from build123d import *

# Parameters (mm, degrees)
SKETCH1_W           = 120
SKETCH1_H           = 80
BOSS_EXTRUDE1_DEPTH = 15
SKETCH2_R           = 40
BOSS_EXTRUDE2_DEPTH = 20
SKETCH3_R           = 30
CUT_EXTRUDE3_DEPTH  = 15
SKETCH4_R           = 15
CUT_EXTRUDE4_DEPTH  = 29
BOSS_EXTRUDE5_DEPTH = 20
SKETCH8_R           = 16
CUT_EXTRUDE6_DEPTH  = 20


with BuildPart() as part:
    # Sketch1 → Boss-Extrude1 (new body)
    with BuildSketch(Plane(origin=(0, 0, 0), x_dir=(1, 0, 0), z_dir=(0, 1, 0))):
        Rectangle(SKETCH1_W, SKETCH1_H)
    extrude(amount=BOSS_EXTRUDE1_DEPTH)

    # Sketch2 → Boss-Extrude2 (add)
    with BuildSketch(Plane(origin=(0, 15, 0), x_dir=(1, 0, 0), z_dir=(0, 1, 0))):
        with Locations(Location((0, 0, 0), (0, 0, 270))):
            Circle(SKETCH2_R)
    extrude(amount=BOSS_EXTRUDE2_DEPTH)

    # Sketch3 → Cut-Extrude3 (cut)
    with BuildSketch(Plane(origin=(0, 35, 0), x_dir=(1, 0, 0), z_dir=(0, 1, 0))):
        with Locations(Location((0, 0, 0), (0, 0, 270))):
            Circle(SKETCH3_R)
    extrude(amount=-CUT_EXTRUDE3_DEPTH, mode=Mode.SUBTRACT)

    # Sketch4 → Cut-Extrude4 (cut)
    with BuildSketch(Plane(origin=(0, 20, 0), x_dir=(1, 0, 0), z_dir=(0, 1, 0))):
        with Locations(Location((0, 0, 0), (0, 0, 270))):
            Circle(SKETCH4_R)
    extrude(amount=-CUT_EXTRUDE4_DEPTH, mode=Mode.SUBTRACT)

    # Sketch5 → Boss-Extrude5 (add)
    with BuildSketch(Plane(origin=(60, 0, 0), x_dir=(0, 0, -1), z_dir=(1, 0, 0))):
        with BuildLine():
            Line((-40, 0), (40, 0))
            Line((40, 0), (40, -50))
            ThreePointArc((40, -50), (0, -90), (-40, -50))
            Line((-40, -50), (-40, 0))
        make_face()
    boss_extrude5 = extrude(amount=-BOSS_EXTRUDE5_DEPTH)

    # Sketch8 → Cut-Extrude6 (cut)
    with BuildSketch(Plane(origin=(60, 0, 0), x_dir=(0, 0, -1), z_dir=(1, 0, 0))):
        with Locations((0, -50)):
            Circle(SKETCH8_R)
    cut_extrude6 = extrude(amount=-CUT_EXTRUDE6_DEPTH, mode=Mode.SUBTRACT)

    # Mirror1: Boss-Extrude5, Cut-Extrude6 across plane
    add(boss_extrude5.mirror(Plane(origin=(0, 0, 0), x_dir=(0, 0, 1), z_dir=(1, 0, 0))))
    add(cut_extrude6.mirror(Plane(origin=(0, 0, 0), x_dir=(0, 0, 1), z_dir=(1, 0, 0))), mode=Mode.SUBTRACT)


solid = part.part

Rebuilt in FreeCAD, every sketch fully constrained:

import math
import FreeCAD as App
import Part
import Sketcher

doc = App.newDocument("Part")
body = doc.addObject("PartDesign::Body", "Body")

sketch1 = doc.addObject("Sketcher::SketchObject", "Sketch")
body.addObject(sketch1)
sketch1.AttachmentSupport = (doc.XZ_Plane, [""])
sketch1.MapMode = "FlatFace"
sketch1.addGeometry([
    Part.LineSegment(App.Vector(-60, -40, 0), App.Vector(-60, 40, 0)),
    Part.LineSegment(App.Vector(-60, 40, 0), App.Vector(60, 40, 0)),
    Part.LineSegment(App.Vector(60, 40, 0), App.Vector(60, -40, 0)),
    Part.LineSegment(App.Vector(60, -40, 0), App.Vector(-60, -40, 0)),
], False)
sketch1.addConstraint([
    Sketcher.Constraint("Coincident", 0, 2, 1, 1),
    Sketcher.Constraint("Coincident", 1, 2, 2, 1),
    Sketcher.Constraint("Coincident", 2, 2, 3, 1),
    Sketcher.Constraint("Coincident", 3, 2, 0, 1),
    Sketcher.Constraint("Vertical", 0),
    Sketcher.Constraint("Horizontal", 1),
    Sketcher.Constraint("Vertical", 2),
    Sketcher.Constraint("Horizontal", 3),
    Sketcher.Constraint("Symmetric", 0, 2, 2, 2, -1, 1),
    Sketcher.Constraint("DistanceX", 1, 1, 1, 2, 120.0),
    Sketcher.Constraint("DistanceY", 0, 1, 0, 2, 80.0),
])
pad1 = doc.addObject("PartDesign::Pad", "Pad")
body.addObject(pad1)
pad1.Profile = sketch1
pad1.Length = 15
pad1.Reversed = True

sketch2 = doc.addObject("Sketcher::SketchObject", "Sketch001")
body.addObject(sketch2)
sketch2.AttachmentSupport = (doc.XZ_Plane, [""])
sketch2.MapMode = "FlatFace"
sketch2.AttachmentOffset = App.Placement(App.Vector(0, 0, -15), App.Rotation())
sketch2.addGeometry(Part.Circle(App.Vector(0, 0, 0), App.Vector(0, 0, 1), 40), False)
sketch2.addConstraint([
    Sketcher.Constraint("Coincident", 0, 3, -1, 1),
    Sketcher.Constraint("Diameter", 0, 80.0),
])
pad2 = doc.addObject("PartDesign::Pad", "Pad001")
body.addObject(pad2)
pad2.Profile = sketch2
pad2.Length = 20
pad2.Reversed = True

sketch3 = doc.addObject("Sketcher::SketchObject", "Sketch002")
body.addObject(sketch3)
sketch3.AttachmentSupport = (doc.XZ_Plane, [""])
sketch3.MapMode = "FlatFace"
sketch3.AttachmentOffset = App.Placement(App.Vector(0, 0, -35), App.Rotation())
sketch3.addGeometry(Part.Circle(App.Vector(0, 0, 0), App.Vector(0, 0, 1), 30), False)
sketch3.addConstraint([
    Sketcher.Constraint("Coincident", 0, 3, -1, 1),
    Sketcher.Constraint("Diameter", 0, 60.0),
])
pocket1 = doc.addObject("PartDesign::Pocket", "Pocket")
body.addObject(pocket1)
pocket1.Profile = sketch3
pocket1.Length = 15
pocket1.Reversed = True

sketch4 = doc.addObject("Sketcher::SketchObject", "Sketch003")
body.addObject(sketch4)
sketch4.AttachmentSupport = (doc.XZ_Plane, [""])
sketch4.MapMode = "FlatFace"
sketch4.AttachmentOffset = App.Placement(App.Vector(0, 0, -20), App.Rotation())
sketch4.addGeometry(Part.Circle(App.Vector(0, 0, 0), App.Vector(0, 0, 1), 15), False)
sketch4.addConstraint([
    Sketcher.Constraint("Coincident", 0, 3, -1, 1),
    Sketcher.Constraint("Diameter", 0, 30.0),
])
pocket2 = doc.addObject("PartDesign::Pocket", "Pocket001")
body.addObject(pocket2)
pocket2.Profile = sketch4
pocket2.Length = 29
pocket2.Reversed = True

sketch5 = doc.addObject("Sketcher::SketchObject", "Sketch004")
body.addObject(sketch5)
sketch5.AttachmentSupport = (doc.YZ_Plane, [""])
sketch5.MapMode = "FlatFace"
sketch5.AttachmentOffset = App.Placement(App.Vector(0, 0, 60), App.Rotation())
sketch5.addGeometry([
    Part.LineSegment(App.Vector(0, -40, 0), App.Vector(0, 40, 0)),
    Part.LineSegment(App.Vector(0, 40, 0), App.Vector(-50, 40, 0)),
    Part.ArcOfCircle(Part.Circle(App.Vector(-50, 0, 0), App.Vector(0, 0, 1), 40), math.radians(90), math.radians(270)),
    Part.LineSegment(App.Vector(-50, -40, 0), App.Vector(0, -40, 0)),
], False)
sketch5.addConstraint([
    Sketcher.Constraint("Coincident", 0, 2, 1, 1),
    Sketcher.Constraint("Tangent", 1, 2, 2, 1),
    Sketcher.Constraint("Tangent", 2, 2, 3, 1),
    Sketcher.Constraint("Coincident", 3, 2, 0, 1),
    Sketcher.Constraint("Vertical", 0),
    Sketcher.Constraint("Horizontal", 1),
    Sketcher.Constraint("Horizontal", 3),
    Sketcher.Constraint("Symmetric", 0, 2, 3, 2, -1, 1),
    Sketcher.Constraint("Radius", 2, 40.0),
    Sketcher.Constraint("DistanceX", 1, 2, 1, 1, 50.0),
])
pad3 = doc.addObject("PartDesign::Pad", "Pad002")
body.addObject(pad3)
pad3.Profile = sketch5
pad3.Length = 20
pad3.Reversed = True

sketch6 = doc.addObject("Sketcher::SketchObject", "Sketch005")
body.addObject(sketch6)
sketch6.AttachmentSupport = (doc.YZ_Plane, [""])
sketch6.MapMode = "FlatFace"
sketch6.AttachmentOffset = App.Placement(App.Vector(0, 0, 60), App.Rotation())
sketch6.addGeometry(Part.Circle(App.Vector(-50, 0, 0), App.Vector(0, 0, 1), 16), False)
sketch6.addConstraint([
    Sketcher.Constraint("PointOnObject", 0, 3, -1),
    Sketcher.Constraint("Diameter", 0, 32.0),
    Sketcher.Constraint("DistanceX", 0, 3, -1, 1, 50.0),
])
pocket3 = doc.addObject("PartDesign::Pocket", "Pocket002")
body.addObject(pocket3)
pocket3.Profile = sketch6
pocket3.Length = 20
doc.recompute()

mirrored = doc.addObject("PartDesign::Mirrored", "Mirrored")
body.addObject(mirrored)
mirrored.Originals = [pad3, pocket3]
mirrored.MirrorPlane = (doc.YZ_Plane, [""])
body.Tip = mirrored

doc.recompute()
